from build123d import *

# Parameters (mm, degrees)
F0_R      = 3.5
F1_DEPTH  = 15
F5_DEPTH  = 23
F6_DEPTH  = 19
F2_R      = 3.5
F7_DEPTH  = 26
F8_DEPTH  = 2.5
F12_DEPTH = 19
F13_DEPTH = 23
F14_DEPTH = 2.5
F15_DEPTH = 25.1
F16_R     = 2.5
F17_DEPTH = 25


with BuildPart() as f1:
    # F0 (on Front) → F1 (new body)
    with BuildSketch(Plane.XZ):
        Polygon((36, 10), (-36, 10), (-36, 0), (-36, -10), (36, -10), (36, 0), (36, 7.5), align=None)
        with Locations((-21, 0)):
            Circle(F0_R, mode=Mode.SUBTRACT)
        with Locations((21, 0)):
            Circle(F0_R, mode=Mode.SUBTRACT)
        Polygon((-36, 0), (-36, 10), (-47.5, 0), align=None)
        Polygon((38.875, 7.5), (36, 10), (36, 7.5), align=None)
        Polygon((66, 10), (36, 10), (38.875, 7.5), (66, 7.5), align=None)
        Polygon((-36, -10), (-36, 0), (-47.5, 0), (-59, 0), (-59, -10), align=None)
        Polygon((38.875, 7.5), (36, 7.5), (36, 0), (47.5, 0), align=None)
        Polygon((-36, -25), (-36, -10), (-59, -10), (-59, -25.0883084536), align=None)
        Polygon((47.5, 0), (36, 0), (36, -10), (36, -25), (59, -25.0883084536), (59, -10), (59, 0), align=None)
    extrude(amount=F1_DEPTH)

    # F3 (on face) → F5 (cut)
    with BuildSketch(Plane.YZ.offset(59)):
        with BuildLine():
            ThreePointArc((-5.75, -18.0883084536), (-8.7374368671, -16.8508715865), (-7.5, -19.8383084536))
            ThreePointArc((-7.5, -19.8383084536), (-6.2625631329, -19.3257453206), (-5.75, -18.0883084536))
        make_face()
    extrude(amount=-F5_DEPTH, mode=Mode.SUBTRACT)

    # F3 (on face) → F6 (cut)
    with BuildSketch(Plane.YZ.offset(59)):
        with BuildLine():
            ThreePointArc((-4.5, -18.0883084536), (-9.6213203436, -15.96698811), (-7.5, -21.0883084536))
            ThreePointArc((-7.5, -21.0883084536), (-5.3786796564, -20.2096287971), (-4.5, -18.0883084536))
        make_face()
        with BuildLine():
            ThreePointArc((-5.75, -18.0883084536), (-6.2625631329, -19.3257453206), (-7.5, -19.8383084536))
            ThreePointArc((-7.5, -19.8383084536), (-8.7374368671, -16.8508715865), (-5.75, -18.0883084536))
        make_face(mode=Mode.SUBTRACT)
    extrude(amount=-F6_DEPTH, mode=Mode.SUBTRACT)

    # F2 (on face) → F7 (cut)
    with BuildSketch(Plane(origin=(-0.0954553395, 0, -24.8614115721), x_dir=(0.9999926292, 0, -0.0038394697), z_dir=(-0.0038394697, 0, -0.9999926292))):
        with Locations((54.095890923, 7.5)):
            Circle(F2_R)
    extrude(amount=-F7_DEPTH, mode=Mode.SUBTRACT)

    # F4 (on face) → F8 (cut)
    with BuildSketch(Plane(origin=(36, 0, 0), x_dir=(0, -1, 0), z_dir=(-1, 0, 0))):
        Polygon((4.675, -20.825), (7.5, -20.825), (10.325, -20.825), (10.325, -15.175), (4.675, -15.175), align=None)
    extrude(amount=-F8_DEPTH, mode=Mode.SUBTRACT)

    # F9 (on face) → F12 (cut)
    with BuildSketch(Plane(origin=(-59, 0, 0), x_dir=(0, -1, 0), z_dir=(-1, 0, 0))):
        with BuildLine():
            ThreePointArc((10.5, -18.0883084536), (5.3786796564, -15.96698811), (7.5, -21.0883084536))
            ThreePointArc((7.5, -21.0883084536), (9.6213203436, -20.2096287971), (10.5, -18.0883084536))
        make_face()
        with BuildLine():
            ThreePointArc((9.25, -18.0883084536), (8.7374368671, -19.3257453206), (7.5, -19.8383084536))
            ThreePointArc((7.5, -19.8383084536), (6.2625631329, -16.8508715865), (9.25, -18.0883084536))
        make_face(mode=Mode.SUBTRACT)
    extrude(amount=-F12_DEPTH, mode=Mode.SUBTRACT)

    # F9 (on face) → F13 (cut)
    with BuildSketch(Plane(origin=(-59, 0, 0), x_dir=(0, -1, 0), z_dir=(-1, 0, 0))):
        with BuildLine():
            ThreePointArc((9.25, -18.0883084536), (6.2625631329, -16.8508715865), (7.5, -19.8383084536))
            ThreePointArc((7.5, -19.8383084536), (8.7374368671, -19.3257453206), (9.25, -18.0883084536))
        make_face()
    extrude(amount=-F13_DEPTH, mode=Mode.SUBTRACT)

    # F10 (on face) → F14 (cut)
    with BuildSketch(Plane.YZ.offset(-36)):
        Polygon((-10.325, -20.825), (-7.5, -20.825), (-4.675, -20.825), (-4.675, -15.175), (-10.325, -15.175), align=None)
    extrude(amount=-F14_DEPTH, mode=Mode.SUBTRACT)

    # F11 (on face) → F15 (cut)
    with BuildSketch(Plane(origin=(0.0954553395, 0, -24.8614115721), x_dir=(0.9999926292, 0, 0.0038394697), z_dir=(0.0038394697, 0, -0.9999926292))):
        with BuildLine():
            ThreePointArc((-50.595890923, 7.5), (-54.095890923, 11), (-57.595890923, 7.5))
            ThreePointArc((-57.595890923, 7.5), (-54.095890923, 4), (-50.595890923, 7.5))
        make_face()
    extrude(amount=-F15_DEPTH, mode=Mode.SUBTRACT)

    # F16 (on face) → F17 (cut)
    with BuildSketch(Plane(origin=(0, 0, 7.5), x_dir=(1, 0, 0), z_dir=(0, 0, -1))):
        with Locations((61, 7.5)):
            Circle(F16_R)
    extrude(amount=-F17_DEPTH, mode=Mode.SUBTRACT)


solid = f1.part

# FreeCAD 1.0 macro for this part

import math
import FreeCAD as App
import Part
import Sketcher
from FreeCAD import Vector
Q = App.Units.Quantity


def add_polygon(sketch, points):
    """Adds a closed chain of lines whose ends are joined by coincident constraints."""
    first, n = sketch.GeometryCount, len(points)
    for a, b in zip(points, points[1:] + points[:1]):
        sketch.addGeometry(Part.LineSegment(App.Vector(*a, 0), App.Vector(*b, 0)), False)
    for i in range(n):
        sketch.addConstraint(Sketcher.Constraint("Coincident", first + i, 2, first + (i + 1) % n, 1))

doc = App.newDocument("Part")
body = doc.addObject("PartDesign::Body", "Body")

sketch1 = body.newObject("Sketcher::SketchObject", "Sketch")
sketch1.AttachmentSupport = (doc.getObject("XZ_Plane"), [""])
sketch1.MapMode = "FlatFace"
add_polygon(sketch1, [(-36, 10), (-47.5, 0), (-59, 0), (-59, -25.1), (-36, -25), (-36, -10), (36, -10), (36, -25), (59, -25.1), (59, 0), (47.5, 0), (38.9, 7.5), (66, 7.5), (66, 10)])
sketch1.addGeometry(Part.Circle(Vector(-21, 0, 0), Vector(0, 0, 1), 3.5), False)
sketch1.addGeometry(Part.Circle(Vector(21, 0, 0), Vector(0, 0, 1), 3.5), False)
sketch1.addConstraint(Sketcher.Constraint("Horizontal", 1))
sketch1.addConstraint(Sketcher.Constraint("Vertical", 2))
sketch1.addConstraint(Sketcher.Constraint("Vertical", 4))
sketch1.addConstraint(Sketcher.Constraint("Horizontal", 5))
sketch1.addConstraint(Sketcher.Constraint("Vertical", 6))
sketch1.addConstraint(Sketcher.Constraint("Vertical", 8))
sketch1.addConstraint(Sketcher.Constraint("Horizontal", 9))
sketch1.addConstraint(Sketcher.Constraint("Horizontal", 11))
sketch1.addConstraint(Sketcher.Constraint("Vertical", 12))
sketch1.addConstraint(Sketcher.Constraint("Horizontal", 13))
sketch1.addConstraint(Sketcher.Constraint("Equal", 14, 15))
sketch1.addConstraint(Sketcher.Constraint("Symmetric", 14, 3, 15, 3, -1, 1))
sketch1.addConstraint(Sketcher.Constraint("Symmetric", 1, 2, 8, 2, -1, 1))
sketch1.addConstraint(Sketcher.Constraint("Symmetric", 5, 2, 13, 2, -1, 1))
sketch1.addConstraint(Sketcher.Constraint("Symmetric", 3, 2, 6, 2, -2))
sketch1.addConstraint(Sketcher.Constraint("Symmetric", 0, 2, 9, 2, -2))
sketch1.addConstraint(Sketcher.Constraint("PointOnObject", 14, 3, -1))
sketch1.addConstraint(Sketcher.Constraint("Horizontal", 2, 2, 7, 2))
sketch1.addConstraint(Sketcher.Constraint("Diameter", 14, Q("7 mm")))
sketch1.addConstraint(Sketcher.Constraint("DistanceX", 5, 1, 5, 2, Q("72 mm")))
sketch1.addConstraint(Sketcher.Constraint("DistanceX", 13, 2, 13, 1, Q("102 mm")))
sketch1.addConstraint(Sketcher.Constraint("DistanceY", 4, 1, 4, 2, Q("15 mm")))
sketch1.addConstraint(Sketcher.Constraint("DistanceX", 1, 2, 1, 1, Q("11.5 mm")))
sketch1.addConstraint(Sketcher.Constraint("DistanceY", 12, 1, 12, 2, Q("2.5 mm")))
sketch1.addConstraint(Sketcher.Constraint("DistanceX", 14, 3, -1, 1, Q("21 mm")))
sketch1.addConstraint(Sketcher.Constraint("DistanceX", 1, 2, -1, 1, Q("59 mm")))
sketch1.addConstraint(Sketcher.Constraint("DistanceY", 3, 2, -1, 1, Q("25 mm")))
sketch1.addConstraint(Sketcher.Constraint("Angle", 3, Q("0.219986 deg")))
sketch1.addConstraint(Sketcher.Constraint("DistanceX", 11, 1, 11, 2, Q("27.125 mm")))
pad1 = body.newObject("PartDesign::Pad", "Pad")
pad1.Profile = sketch1
pad1.Length = 15

sketch2 = body.newObject("Sketcher::SketchObject", "Sketch001")
sketch2.AttachmentSupport = (doc.getObject("YZ_Plane"), [""])
sketch2.MapMode = "FlatFace"
sketch2.AttachmentOffset = App.Placement(Vector(0, 0, 59), App.Rotation())
sketch2.addGeometry(Part.ArcOfCircle(Part.Circle(Vector(-7.5, -18.1, 0), Vector(0, 0, 1), 1.8), math.radians(0), math.radians(270)), False)
sketch2.addGeometry(Part.ArcOfCircle(Part.Circle(Vector(-7.5, -18.1, 0), Vector(0, 0, 1), 1.8), math.radians(-90), math.radians(0)), False)
sketch2.addConstraint(Sketcher.Constraint("Tangent", 0, 1, 1, 2))
sketch2.addConstraint(Sketcher.Constraint("Coincident", 1, 1, 0, 2))
sketch2.addConstraint(Sketcher.Constraint("Horizontal", 1, 3, 0, 1))
sketch2.addConstraint(Sketcher.Constraint("Vertical", 0, 3, 1, 1))
sketch2.addConstraint(Sketcher.Constraint("Radius", 0, Q("1.75 mm")))
sketch2.addConstraint(Sketcher.Constraint("DistanceX", 0, 3, -1, 1, Q("7.5 mm")))
sketch2.addConstraint(Sketcher.Constraint("DistanceY", 0, 3, -1, 1, Q("18.088308 mm")))
pocket1 = body.newObject("PartDesign::Pocket", "Pocket")
pocket1.Profile = sketch2
pocket1.Length = 23

sketch3 = body.newObject("Sketcher::SketchObject", "Sketch002")
sketch3.AttachmentSupport = (doc.getObject("YZ_Plane"), [""])
sketch3.MapMode = "FlatFace"
sketch3.AttachmentOffset = App.Placement(Vector(0, 0, 59), App.Rotation())
sketch3.addGeometry(Part.ArcOfCircle(Part.Circle(Vector(-7.5, -18.1, 0), Vector(0, 0, 1), 3), math.radians(0), math.radians(270)), False)
sketch3.addGeometry(Part.ArcOfCircle(Part.Circle(Vector(-7.5, -18.1, 0), Vector(0, 0, 1), 3), math.radians(-90), math.radians(0)), False)
sketch3.addGeometry(Part.ArcOfCircle(Part.Circle(Vector(-7.5, -18.1, 0), Vector(0, 0, 1), 1.8), math.radians(0), math.radians(270)), False)
sketch3.addGeometry(Part.ArcOfCircle(Part.Circle(Vector(-7.5, -18.1, 0), Vector(0, 0, 1), 1.8), math.radians(-90), math.radians(0)), False)
sketch3.addConstraint(Sketcher.Constraint("Tangent", 0, 1, 1, 2))
sketch3.addConstraint(Sketcher.Constraint("Coincident", 1, 1, 0, 2))
sketch3.addConstraint(Sketcher.Constraint("Tangent", 2, 1, 3, 2))
sketch3.addConstraint(Sketcher.Constraint("Coincident", 3, 1, 2, 2))
sketch3.addConstraint(Sketcher.Constraint("Coincident", 2, 3, 0, 3))
sketch3.addConstraint(Sketcher.Constraint("Horizontal", 3, 3, 0, 1))
sketch3.addConstraint(Sketcher.Constraint("Horizontal", 0, 1, 2, 1))
sketch3.addConstraint(Sketcher.Constraint("Vertical", 3, 3, 1, 1))
sketch3.addConstraint(Sketcher.Constraint("Vertical", 1, 1, 3, 1))
sketch3.addConstraint(Sketcher.Constraint("Radius", 0, Q("3 mm")))
sketch3.addConstraint(Sketcher.Constraint("Radius", 2, Q("1.75 mm")))
sketch3.addConstraint(Sketcher.Constraint("DistanceX", 0, 3, -1, 1, Q("7.5 mm")))
sketch3.addConstraint(Sketcher.Constraint("DistanceY", 0, 3, -1, 1, Q("18.088308 mm")))
pocket2 = body.newObject("PartDesign::Pocket", "Pocket001")
pocket2.Profile = sketch3
pocket2.Length = 19

sketch4 = body.newObject("Sketcher::SketchObject", "Sketch003")
sketch4.Placement = App.Placement(Vector(-0.095455, 0, -24.861412), App.Rotation(Vector(0.999992629, 0, -0.00383947), Vector(0, -1, 0), Vector(-0.00383947, 0, -0.999992629), "ZXY"))
sketch4.addGeometry(Part.Circle(Vector(54.1, 7.5, 0), Vector(0, 0, 1), 3.5), False)
sketch4.addConstraint(Sketcher.Constraint("Diameter", 0, Q("7 mm")))
sketch4.addConstraint(Sketcher.Constraint("DistanceY", -1, 1, 0, 3, Q("7.5 mm")))
sketch4.addConstraint(Sketcher.Constraint("DistanceX", -1, 1, 0, 3, Q("54.095891 mm")))
pocket3 = body.newObject("PartDesign::Pocket", "Pocket002")
pocket3.Profile = sketch4
pocket3.Length = 26

sketch5 = body.newObject("Sketcher::SketchObject", "Sketch004")
sketch5.AttachmentSupport = (doc.getObject("YZ_Plane"), [""])
sketch5.MapMode = "FlatFace"
sketch5.AttachmentOffset = App.Placement(Vector(0, 0, 36), App.Rotation())
add_polygon(sketch5, [(-5, -21), (-10, -21), (-10, -15), (-5, -15)])
sketch5.addConstraint(Sketcher.Constraint("Horizontal", 0))
sketch5.addConstraint(Sketcher.Constraint("Vertical", 1))
sketch5.addConstraint(Sketcher.Constraint("Horizontal", 2))
sketch5.addConstraint(Sketcher.Constraint("Vertical", 3))
sketch5.addConstraint(Sketcher.Constraint("Equal", 2, 1))
sketch5.addConstraint(Sketcher.Constraint("DistanceX", 0, 2, 0, 1, Q("5.65 mm")))
sketch5.addConstraint(Sketcher.Constraint("DistanceX", 0, 2, -1, 1, Q("10.325 mm")))
sketch5.addConstraint(Sketcher.Constraint("DistanceY", 0, 2, -1, 1, Q("20.825 mm")))
pocket4 = body.newObject("PartDesign::Pocket", "Pocket003")
pocket4.Profile = sketch5
pocket4.Length = 2.5
pocket4.Reversed = True

sketch6 = body.newObject("Sketcher::SketchObject", "Sketch005")
sketch6.AttachmentSupport = (doc.getObject("YZ_Plane"), [""])
sketch6.MapMode = "FlatFace"
sketch6.AttachmentOffset = App.Placement(Vector(0, 0, -59), App.Rotation())
sketch6.addGeometry(Part.ArcOfCircle(Part.Circle(Vector(-7.5, -18.1, 0), Vector(0, 0, 1), 3), math.radians(-90), math.radians(180)), False)
sketch6.addGeometry(Part.ArcOfCircle(Part.Circle(Vector(-7.5, -18.1, 0), Vector(0, 0, 1), 3), math.radians(180), math.radians(270)), False)
sketch6.addGeometry(Part.ArcOfCircle(Part.Circle(Vector(-7.5, -18.1, 0), Vector(0, 0, 1), 1.8), math.radians(-90), math.radians(180)), False)
sketch6.addGeometry(Part.ArcOfCircle(Part.Circle(Vector(-7.5, -18.1, 0), Vector(0, 0, 1), 1.8), math.radians(180), math.radians(270)), False)
sketch6.addConstraint(Sketcher.Constraint("Tangent", 0, 1, 1, 2))
sketch6.addConstraint(Sketcher.Constraint("Coincident", 1, 1, 0, 2))
sketch6.addConstraint(Sketcher.Constraint("Tangent", 2, 1, 3, 2))
sketch6.addConstraint(Sketcher.Constraint("Coincident", 3, 1, 2, 2))
sketch6.addConstraint(Sketcher.Constraint("Coincident", 2, 3, 0, 3))
sketch6.addConstraint(Sketcher.Constraint("Horizontal", 3, 3, 1, 1))
sketch6.addConstraint(Sketcher.Constraint("Horizontal", 1, 1, 3, 1))
sketch6.addConstraint(Sketcher.Constraint("Vertical", 3, 3, 0, 1))
sketch6.addConstraint(Sketcher.Constraint("Vertical", 0, 1, 2, 1))
sketch6.addConstraint(Sketcher.Constraint("Radius", 0, Q("3 mm")))
sketch6.addConstraint(Sketcher.Constraint("Radius", 2, Q("1.75 mm")))
sketch6.addConstraint(Sketcher.Constraint("DistanceX", 0, 3, -1, 1, Q("7.5 mm")))
sketch6.addConstraint(Sketcher.Constraint("DistanceY", 0, 3, -1, 1, Q("18.088308 mm")))
pocket5 = body.newObject("PartDesign::Pocket", "Pocket004")
pocket5.Profile = sketch6
pocket5.Length = 19
pocket5.Reversed = True

sketch7 = body.newObject("Sketcher::SketchObject", "Sketch006")
sketch7.AttachmentSupport = (doc.getObject("YZ_Plane"), [""])
sketch7.MapMode = "FlatFace"
sketch7.AttachmentOffset = App.Placement(Vector(0, 0, -59), App.Rotation())
sketch7.addGeometry(Part.ArcOfCircle(Part.Circle(Vector(-7.5, -18.1, 0), Vector(0, 0, 1), 1.8), math.radians(-90), math.radians(180)), False)
sketch7.addGeometry(Part.ArcOfCircle(Part.Circle(Vector(-7.5, -18.1, 0), Vector(0, 0, 1), 1.8), math.radians(180), math.radians(270)), False)
sketch7.addConstraint(Sketcher.Constraint("Tangent", 0, 1, 1, 2))
sketch7.addConstraint(Sketcher.Constraint("Coincident", 1, 1, 0, 2))
sketch7.addConstraint(Sketcher.Constraint("Horizontal", 0, 3, 1, 1))
sketch7.addConstraint(Sketcher.Constraint("Vertical", 1, 3, 0, 1))
sketch7.addConstraint(Sketcher.Constraint("Radius", 0, Q("1.75 mm")))
sketch7.addConstraint(Sketcher.Constraint("DistanceX", 0, 3, -1, 1, Q("7.5 mm")))
sketch7.addConstraint(Sketcher.Constraint("DistanceY", 0, 3, -1, 1, Q("18.088308 mm")))
pocket6 = body.newObject("PartDesign::Pocket", "Pocket005")
pocket6.Profile = sketch7
pocket6.Length = 23
pocket6.Reversed = True

sketch8 = body.newObject("Sketcher::SketchObject", "Sketch007")
sketch8.AttachmentSupport = (doc.getObject("YZ_Plane"), [""])
sketch8.MapMode = "FlatFace"
sketch8.AttachmentOffset = App.Placement(Vector(0, 0, -36), App.Rotation())
add_polygon(sketch8, [(-10, -21), (-5, -21), (-5, -15), (-10, -15)])
sketch8.addConstraint(Sketcher.Constraint("Horizontal", 0))
sketch8.addConstraint(Sketcher.Constraint("Vertical", 1))
sketch8.addConstraint(Sketcher.Constraint("Horizontal", 2))
sketch8.addConstraint(Sketcher.Constraint("Vertical", 3))
sketch8.addConstraint(Sketcher.Constraint("Equal", 2, 1))
sketch8.addConstraint(Sketcher.Constraint("DistanceX", 0, 1, 0, 2, Q("5.65 mm")))
sketch8.addConstraint(Sketcher.Constraint("DistanceX", 0, 2, -1, 1, Q("4.675 mm")))
sketch8.addConstraint(Sketcher.Constraint("DistanceY", 0, 2, -1, 1, Q("20.825 mm")))
pocket7 = body.newObject("PartDesign::Pocket", "Pocket006")
pocket7.Profile = sketch8
pocket7.Length = 2.5

sketch9 = body.newObject("Sketcher::SketchObject", "Sketch008")
sketch9.Placement = App.Placement(Vector(0.095455, 0, -24.861412), App.Rotation(Vector(0.999992629, 0, 0.00383947), Vector(0, -1, 0), Vector(0.00383947, 0, -0.999992629), "ZXY"))
sketch9.addGeometry(Part.Circle(Vector(-54.1, 7.5, 0), Vector(0, 0, 1), 3.5), False)
sketch9.addConstraint(Sketcher.Constraint("Diameter", 0, Q("7 mm")))
sketch9.addConstraint(Sketcher.Constraint("DistanceY", -1, 1, 0, 3, Q("7.5 mm")))
sketch9.addConstraint(Sketcher.Constraint("DistanceX", 0, 3, -1, 1, Q("54.095891 mm")))
pocket8 = body.newObject("PartDesign::Pocket", "Pocket007")
pocket8.Profile = sketch9
pocket8.Length = 25.1

sketch10 = body.newObject("Sketcher::SketchObject", "Sketch009")
sketch10.AttachmentSupport = (doc.getObject("XY_Plane"), [""])
sketch10.MapMode = "FlatFace"
sketch10.AttachmentOffset = App.Placement(Vector(0, 0, 7.5), App.Rotation())
sketch10.addGeometry(Part.Circle(Vector(61, -7.5, 0), Vector(0, 0, 1), 2.5), False)
sketch10.addConstraint(Sketcher.Constraint("Diameter", 0, Q("5 mm")))
sketch10.addConstraint(Sketcher.Constraint("DistanceX", -1, 1, 0, 3, Q("61 mm")))
sketch10.addConstraint(Sketcher.Constraint("DistanceY", 0, 3, -1, 1, Q("7.5 mm")))
pocket9 = body.newObject("PartDesign::Pocket", "Pocket008")
pocket9.Profile = sketch10
pocket9.Length = 25
pocket9.Reversed = True

doc.recompute()
